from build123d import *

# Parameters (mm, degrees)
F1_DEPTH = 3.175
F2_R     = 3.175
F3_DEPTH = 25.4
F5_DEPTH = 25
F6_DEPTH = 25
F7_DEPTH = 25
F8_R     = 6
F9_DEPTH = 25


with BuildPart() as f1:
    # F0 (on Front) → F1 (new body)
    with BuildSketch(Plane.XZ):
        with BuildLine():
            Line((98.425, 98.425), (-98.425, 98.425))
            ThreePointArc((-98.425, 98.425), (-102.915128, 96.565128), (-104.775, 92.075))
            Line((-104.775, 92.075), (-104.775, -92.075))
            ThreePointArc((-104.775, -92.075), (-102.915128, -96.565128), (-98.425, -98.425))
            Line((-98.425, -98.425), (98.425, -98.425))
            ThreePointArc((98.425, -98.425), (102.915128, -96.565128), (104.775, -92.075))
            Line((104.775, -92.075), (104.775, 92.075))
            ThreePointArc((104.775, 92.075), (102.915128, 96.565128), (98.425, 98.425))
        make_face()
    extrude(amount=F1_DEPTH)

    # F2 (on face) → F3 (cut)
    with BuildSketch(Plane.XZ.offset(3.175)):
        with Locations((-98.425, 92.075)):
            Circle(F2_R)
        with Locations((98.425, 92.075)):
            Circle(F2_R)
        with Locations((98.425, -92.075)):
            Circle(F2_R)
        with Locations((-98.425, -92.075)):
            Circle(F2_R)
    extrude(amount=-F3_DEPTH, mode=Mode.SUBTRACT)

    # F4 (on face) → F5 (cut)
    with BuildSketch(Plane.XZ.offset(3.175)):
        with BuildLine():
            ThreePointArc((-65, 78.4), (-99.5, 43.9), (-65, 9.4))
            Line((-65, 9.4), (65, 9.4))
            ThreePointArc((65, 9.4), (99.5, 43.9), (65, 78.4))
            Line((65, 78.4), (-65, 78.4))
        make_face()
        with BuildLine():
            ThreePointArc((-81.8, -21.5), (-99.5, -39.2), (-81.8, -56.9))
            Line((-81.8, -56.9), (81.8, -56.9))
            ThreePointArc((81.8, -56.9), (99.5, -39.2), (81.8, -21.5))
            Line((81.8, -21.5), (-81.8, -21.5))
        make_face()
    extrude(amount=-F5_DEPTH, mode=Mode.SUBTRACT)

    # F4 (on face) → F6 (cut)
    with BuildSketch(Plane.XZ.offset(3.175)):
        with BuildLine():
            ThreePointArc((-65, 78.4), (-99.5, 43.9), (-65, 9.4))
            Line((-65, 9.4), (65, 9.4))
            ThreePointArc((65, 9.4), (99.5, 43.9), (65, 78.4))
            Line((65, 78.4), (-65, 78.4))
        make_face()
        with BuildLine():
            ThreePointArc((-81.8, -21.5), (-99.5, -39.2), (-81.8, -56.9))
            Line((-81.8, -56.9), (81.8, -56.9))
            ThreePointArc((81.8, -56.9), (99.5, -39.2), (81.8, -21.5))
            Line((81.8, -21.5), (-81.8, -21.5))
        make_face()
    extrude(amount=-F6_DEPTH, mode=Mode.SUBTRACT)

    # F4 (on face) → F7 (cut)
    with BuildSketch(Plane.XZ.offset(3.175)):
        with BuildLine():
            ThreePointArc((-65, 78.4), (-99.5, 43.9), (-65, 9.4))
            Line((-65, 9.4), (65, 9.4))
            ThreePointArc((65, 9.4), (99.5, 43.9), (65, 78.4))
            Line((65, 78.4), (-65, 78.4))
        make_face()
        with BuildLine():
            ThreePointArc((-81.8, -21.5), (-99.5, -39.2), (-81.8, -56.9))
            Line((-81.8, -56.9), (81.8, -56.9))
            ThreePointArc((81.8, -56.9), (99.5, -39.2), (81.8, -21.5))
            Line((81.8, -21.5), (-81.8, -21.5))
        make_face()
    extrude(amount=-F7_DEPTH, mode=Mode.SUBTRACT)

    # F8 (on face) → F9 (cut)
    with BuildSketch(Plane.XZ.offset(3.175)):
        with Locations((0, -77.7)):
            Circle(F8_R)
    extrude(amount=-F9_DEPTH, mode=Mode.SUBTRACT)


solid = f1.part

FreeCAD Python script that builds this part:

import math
import FreeCAD as App
import Part
import Sketcher

V = App.Vector
Q = App.Units.Quantity

doc = App.newDocument("Part")
body = doc.addObject("PartDesign::Body", "Body")

# Sketch on XZ plane
sketch1 = body.newObject("Sketcher::SketchObject", "Sketch")
sketch1.AttachmentSupport = (doc.getObject("XZ_Plane"), [""])
sketch1.MapMode = "FlatFace"
sketch1.addGeometry(Part.LineSegment(V(98, 98, 0), V(-98, 98, 0)), False)
sketch1.addGeometry(Part.ArcOfCircle(Part.Circle(V(-98, 92, 0), V(0, 0, 1), 6), math.radians(90), math.radians(180)), False)
sketch1.addGeometry(Part.LineSegment(V(-105, 92, 0), V(-105, -92, 0)), False)
sketch1.addGeometry(Part.ArcOfCircle(Part.Circle(V(-98, -92, 0), V(0, 0, 1), 6), math.radians(-180), math.radians(-90)), False)
sketch1.addGeometry(Part.LineSegment(V(-98, -98, 0), V(98, -98, 0)), False)
sketch1.addGeometry(Part.ArcOfCircle(Part.Circle(V(98, -92, 0), V(0, 0, 1), 6), math.radians(-90), math.radians(0)), False)
sketch1.addGeometry(Part.LineSegment(V(105, -92, 0), V(105, 92, 0)), False)
sketch1.addGeometry(Part.ArcOfCircle(Part.Circle(V(98, 92, 0), V(0, 0, 1), 6), math.radians(0), math.radians(90)), False)
sketch1.addConstraint(Sketcher.Constraint("Tangent", 0, 2, 1, 1))
sketch1.addConstraint(Sketcher.Constraint("Tangent", 1, 2, 2, 1))
sketch1.addConstraint(Sketcher.Constraint("Tangent", 2, 2, 3, 1))
sketch1.addConstraint(Sketcher.Constraint("Tangent", 3, 2, 4, 1))
sketch1.addConstraint(Sketcher.Constraint("Tangent", 4, 2, 5, 1))
sketch1.addConstraint(Sketcher.Constraint("Tangent", 5, 2, 6, 1))
sketch1.addConstraint(Sketcher.Constraint("Tangent", 6, 2, 7, 1))
sketch1.addConstraint(Sketcher.Constraint("Tangent", 7, 2, 0, 1))
sketch1.addConstraint(Sketcher.Constraint("Horizontal", 0))
sketch1.addConstraint(Sketcher.Constraint("Vertical", 2))
sketch1.addConstraint(Sketcher.Constraint("Horizontal", 4))
sketch1.addConstraint(Sketcher.Constraint("Vertical", 6))
sketch1.addConstraint(Sketcher.Constraint("Equal", 1, 3))
sketch1.addConstraint(Sketcher.Constraint("Equal", 3, 5))
sketch1.addConstraint(Sketcher.Constraint("Equal", 5, 7))
sketch1.addConstraint(Sketcher.Constraint("Symmetric", 1, 3, 5, 3, -1, 1))
sketch1.addConstraint(Sketcher.Constraint("Radius", 1, Q("6.35 mm")))
sketch1.addConstraint(Sketcher.Constraint("DistanceX", 0, 2, 0, 1, Q("196.85 mm")))
sketch1.addConstraint(Sketcher.Constraint("DistanceY", 2, 2, 2, 1, Q("184.15 mm")))
pad1 = body.newObject("PartDesign::Pad", "Pad")
pad1.Profile = sketch1
pad1.Length = 3.175

# Sketch on XZ plane
sketch2 = body.newObject("Sketcher::SketchObject", "Sketch001")
sketch2.AttachmentSupport = (doc.getObject("XZ_Plane"), [""])
sketch2.MapMode = "FlatFace"
sketch2.AttachmentOffset = App.Placement(V(0, 0, 3.175), App.Rotation())
sketch2.addGeometry(Part.Circle(V(-98.4, 92.1, 0), V(0, 0, 1), 3.2), False)
sketch2.addGeometry(Part.Circle(V(98.4, 92.1, 0), V(0, 0, 1), 3.2), False)
sketch2.addGeometry(Part.Circle(V(98.4, -92.1, 0), V(0, 0, 1), 3.2), False)
sketch2.addGeometry(Part.Circle(V(-98.4, -92.1, 0), V(0, 0, 1), 3.2), False)
sketch2.addConstraint(Sketcher.Constraint("Equal", 0, 1))
sketch2.addConstraint(Sketcher.Constraint("Equal", 1, 2))
sketch2.addConstraint(Sketcher.Constraint("Equal", 2, 3))
sketch2.addConstraint(Sketcher.Constraint("Symmetric", 0, 3, 2, 3, -1, 1))
sketch2.addConstraint(Sketcher.Constraint("Symmetric", 1, 3, 3, 3, -1, 1))
sketch2.addConstraint(Sketcher.Constraint("Symmetric", 0, 3, 1, 3, -2))
sketch2.addConstraint(Sketcher.Constraint("Diameter", 0, Q("6.35 mm")))
sketch2.addConstraint(Sketcher.Constraint("DistanceX", 0, 3, 1, 3, Q("196.85 mm")))
sketch2.addConstraint(Sketcher.Constraint("DistanceY", 2, 3, 1, 3, Q("184.15 mm")))
pocket1 = body.newObject("PartDesign::Pocket", "Pocket")
pocket1.Profile = sketch2
pocket1.Length = 25.4

# Sketch on XZ plane
sketch3 = body.newObject("Sketcher::SketchObject", "Sketch002")
sketch3.AttachmentSupport = (doc.getObject("XZ_Plane"), [""])
sketch3.MapMode = "FlatFace"
sketch3.AttachmentOffset = App.Placement(V(0, 0, 3.175), App.Rotation())
sketch3.addGeometry(Part.ArcOfCircle(Part.Circle(V(-65, 44, 0), V(0, 0, 1), 34), math.radians(90), math.radians(270)), False)
sketch3.addGeometry(Part.LineSegment(V(-65, 9, 0), V(65, 9, 0)), False)
sketch3.addGeometry(Part.ArcOfCircle(Part.Circle(V(65, 44, 0), V(0, 0, 1), 34), math.radians(-90), math.radians(90)), False)
sketch3.addGeometry(Part.LineSegment(V(65, 78, 0), V(-65, 78, 0)), False)
sketch3.addGeometry(Part.ArcOfCircle(Part.Circle(V(-82, -39, 0), V(0, 0, 1), 18), math.radians(90), math.radians(270)), False)
sketch3.addGeometry(Part.LineSegment(V(-82, -57, 0), V(82, -57, 0)), False)
sketch3.addGeometry(Part.ArcOfCircle(Part.Circle(V(82, -39, 0), V(0, 0, 1), 18), math.radians(-90), math.radians(90)), False)
sketch3.addGeometry(Part.LineSegment(V(82, -22, 0), V(-82, -22, 0)), False)
sketch3.addConstraint(Sketcher.Constraint("Tangent", 0, 2, 1, 1))
sketch3.addConstraint(Sketcher.Constraint("Tangent", 1, 2, 2, 1))
sketch3.addConstraint(Sketcher.Constraint("Tangent", 2, 2, 3, 1))
sketch3.addConstraint(Sketcher.Constraint("Tangent", 3, 2, 0, 1))
sketch3.addConstraint(Sketcher.Constraint("Tangent", 4, 2, 5, 1))
sketch3.addConstraint(Sketcher.Constraint("Tangent", 5, 2, 6, 1))
sketch3.addConstraint(Sketcher.Constraint("Tangent", 6, 2, 7, 1))
sketch3.addConstraint(Sketcher.Constraint("Tangent", 7, 2, 4, 1))
sketch3.addConstraint(Sketcher.Constraint("Horizontal", 1))
sketch3.addConstraint(Sketcher.Constraint("Horizontal", 3))
sketch3.addConstraint(Sketcher.Constraint("Horizontal", 5))
sketch3.addConstraint(Sketcher.Constraint("Horizontal", 7))
sketch3.addConstraint(Sketcher.Constraint("Radius", 0, Q("34.5 mm")))
sketch3.addConstraint(Sketcher.Constraint("Radius", 4, Q("17.7 mm")))
sketch3.addConstraint(Sketcher.Constraint("DistanceX", 1, 1, 1, 2, Q("130 mm")))
sketch3.addConstraint(Sketcher.Constraint("DistanceX", 5, 1, 5, 2, Q("163.6 mm")))
sketch3.addConstraint(Sketcher.Constraint("DistanceX", 0, 3, -1, 1, Q("65 mm")))
sketch3.addConstraint(Sketcher.Constraint("DistanceY", -1, 1, 0, 3, Q("43.9 mm")))
sketch3.addConstraint(Sketcher.Constraint("DistanceX", 4, 3, -1, 1, Q("81.8 mm")))
sketch3.addConstraint(Sketcher.Constraint("DistanceY", 4, 3, -1, 1, Q("39.2 mm")))
pocket2 = body.newObject("PartDesign::Pocket", "Pocket001")
pocket2.Profile = sketch3
pocket2.Length = 25

# Sketch on XZ plane
sketch4 = body.newObject("Sketcher::SketchObject", "Sketch003")
sketch4.AttachmentSupport = (doc.getObject("XZ_Plane"), [""])
sketch4.MapMode = "FlatFace"
sketch4.AttachmentOffset = App.Placement(V(0, 0, 3.175), App.Rotation())
sketch4.addGeometry(Part.ArcOfCircle(Part.Circle(V(-65, 44, 0), V(0, 0, 1), 34), math.radians(90), math.radians(270)), False)
sketch4.addGeometry(Part.LineSegment(V(-65, 9, 0), V(65, 9, 0)), False)
sketch4.addGeometry(Part.ArcOfCircle(Part.Circle(V(65, 44, 0), V(0, 0, 1), 34), math.radians(-90), math.radians(90)), False)
sketch4.addGeometry(Part.LineSegment(V(65, 78, 0), V(-65, 78, 0)), False)
sketch4.addGeometry(Part.ArcOfCircle(Part.Circle(V(-82, -39, 0), V(0, 0, 1), 18), math.radians(90), math.radians(270)), False)
sketch4.addGeometry(Part.LineSegment(V(-82, -57, 0), V(82, -57, 0)), False)
sketch4.addGeometry(Part.ArcOfCircle(Part.Circle(V(82, -39, 0), V(0, 0, 1), 18), math.radians(-90), math.radians(90)), False)
sketch4.addGeometry(Part.LineSegment(V(82, -22, 0), V(-82, -22, 0)), False)
sketch4.addConstraint(Sketcher.Constraint("Tangent", 0, 2, 1, 1))
sketch4.addConstraint(Sketcher.Constraint("Tangent", 1, 2, 2, 1))
sketch4.addConstraint(Sketcher.Constraint("Tangent", 2, 2, 3, 1))
sketch4.addConstraint(Sketcher.Constraint("Tangent", 3, 2, 0, 1))
sketch4.addConstraint(Sketcher.Constraint("Tangent", 4, 2, 5, 1))
sketch4.addConstraint(Sketcher.Constraint("Tangent", 5, 2, 6, 1))
sketch4.addConstraint(Sketcher.Constraint("Tangent", 6, 2, 7, 1))
sketch4.addConstraint(Sketcher.Constraint("Tangent", 7, 2, 4, 1))
sketch4.addConstraint(Sketcher.Constraint("Horizontal", 1))
sketch4.addConstraint(Sketcher.Constraint("Horizontal", 3))
sketch4.addConstraint(Sketcher.Constraint("Horizontal", 5))
sketch4.addConstraint(Sketcher.Constraint("Horizontal", 7))
sketch4.addConstraint(Sketcher.Constraint("Radius", 0, Q("34.5 mm")))
sketch4.addConstraint(Sketcher.Constraint("Radius", 4, Q("17.7 mm")))
sketch4.addConstraint(Sketcher.Constraint("DistanceX", 1, 1, 1, 2, Q("130 mm")))
sketch4.addConstraint(Sketcher.Constraint("DistanceX", 5, 1, 5, 2, Q("163.6 mm")))
sketch4.addConstraint(Sketcher.Constraint("DistanceX", 0, 3, -1, 1, Q("65 mm")))
sketch4.addConstraint(Sketcher.Constraint("DistanceY", -1, 1, 0, 3, Q("43.9 mm")))
sketch4.addConstraint(Sketcher.Constraint("DistanceX", 4, 3, -1, 1, Q("81.8 mm")))
sketch4.addConstraint(Sketcher.Constraint("DistanceY", 4, 3, -1, 1, Q("39.2 mm")))
pocket3 = body.newObject("PartDesign::Pocket", "Pocket002")
pocket3.Profile = sketch4
pocket3.Length = 25

# Sketch on XZ plane
sketch5 = body.newObject("Sketcher::SketchObject", "Sketch004")
sketch5.AttachmentSupport = (doc.getObject("XZ_Plane"), [""])
sketch5.MapMode = "FlatFace"
sketch5.AttachmentOffset = App.Placement(V(0, 0, 3.175), App.Rotation())
sketch5.addGeometry(Part.ArcOfCircle(Part.Circle(V(-65, 44, 0), V(0, 0, 1), 34), math.radians(90), math.radians(270)), False)
sketch5.addGeometry(Part.LineSegment(V(-65, 9, 0), V(65, 9, 0)), False)
sketch5.addGeometry(Part.ArcOfCircle(Part.Circle(V(65, 44, 0), V(0, 0, 1), 34), math.radians(-90), math.radians(90)), False)
sketch5.addGeometry(Part.LineSegment(V(65, 78, 0), V(-65, 78, 0)), False)
sketch5.addGeometry(Part.ArcOfCircle(Part.Circle(V(-82, -39, 0), V(0, 0, 1), 18), math.radians(90), math.radians(270)), False)
sketch5.addGeometry(Part.LineSegment(V(-82, -57, 0), V(82, -57, 0)), False)
sketch5.addGeometry(Part.ArcOfCircle(Part.Circle(V(82, -39, 0), V(0, 0, 1), 18), math.radians(-90), math.radians(90)), False)
sketch5.addGeometry(Part.LineSegment(V(82, -22, 0), V(-82, -22, 0)), False)
sketch5.addConstraint(Sketcher.Constraint("Tangent", 0, 2, 1, 1))
sketch5.addConstraint(Sketcher.Constraint("Tangent", 1, 2, 2, 1))
sketch5.addConstraint(Sketcher.Constraint("Tangent", 2, 2, 3, 1))
sketch5.addConstraint(Sketcher.Constraint("Tangent", 3, 2, 0, 1))
sketch5.addConstraint(Sketcher.Constraint("Tangent", 4, 2, 5, 1))
sketch5.addConstraint(Sketcher.Constraint("Tangent", 5, 2, 6, 1))
sketch5.addConstraint(Sketcher.Constraint("Tangent", 6, 2, 7, 1))
sketch5.addConstraint(Sketcher.Constraint("Tangent", 7, 2, 4, 1))
sketch5.addConstraint(Sketcher.Constraint("Horizontal", 1))
sketch5.addConstraint(Sketcher.Constraint("Horizontal", 3))
sketch5.addConstraint(Sketcher.Constraint("Horizontal", 5))
sketch5.addConstraint(Sketcher.Constraint("Horizontal", 7))
sketch5.addConstraint(Sketcher.Constraint("Radius", 0, Q("34.5 mm")))
sketch5.addConstraint(Sketcher.Constraint("Radius", 4, Q("17.7 mm")))
sketch5.addConstraint(Sketcher.Constraint("DistanceX", 1, 1, 1, 2, Q("130 mm")))
sketch5.addConstraint(Sketcher.Constraint("DistanceX", 5, 1, 5, 2, Q("163.6 mm")))
sketch5.addConstraint(Sketcher.Constraint("DistanceX", 0, 3, -1, 1, Q("65 mm")))
sketch5.addConstraint(Sketcher.Constraint("DistanceY", -1, 1, 0, 3, Q("43.9 mm")))
sketch5.addConstraint(Sketcher.Constraint("DistanceX", 4, 3, -1, 1, Q("81.8 mm")))
sketch5.addConstraint(Sketcher.Constraint("DistanceY", 4, 3, -1, 1, Q("39.2 mm")))
pocket4 = body.newObject("PartDesign::Pocket", "Pocket003")
pocket4.Profile = sketch5
pocket4.Length = 25

# Sketch on XZ plane
sketch6 = body.newObject("Sketcher::SketchObject", "Sketch005")
sketch6.AttachmentSupport = (doc.getObject("XZ_Plane"), [""])
sketch6.MapMode = "FlatFace"
sketch6.AttachmentOffset = App.Placement(V(0, 0, 3.175), App.Rotation())
sketch6.addGeometry(Part.Circle(V(0, -78, 0), V(0, 0, 1), 6), False)
sketch6.addConstraint(Sketcher.Constraint("PointOnObject", 0, 3, -2))
sketch6.addConstraint(Sketcher.Constraint("Diameter", 0, Q("12 mm")))
sketch6.addConstraint(Sketcher.Constraint("DistanceY", 0, 3, -1, 1, Q("77.7 mm")))
pocket5 = body.newObject("PartDesign::Pocket", "Pocket004")
pocket5.Profile = sketch6
pocket5.Length = 25

doc.recompute()
